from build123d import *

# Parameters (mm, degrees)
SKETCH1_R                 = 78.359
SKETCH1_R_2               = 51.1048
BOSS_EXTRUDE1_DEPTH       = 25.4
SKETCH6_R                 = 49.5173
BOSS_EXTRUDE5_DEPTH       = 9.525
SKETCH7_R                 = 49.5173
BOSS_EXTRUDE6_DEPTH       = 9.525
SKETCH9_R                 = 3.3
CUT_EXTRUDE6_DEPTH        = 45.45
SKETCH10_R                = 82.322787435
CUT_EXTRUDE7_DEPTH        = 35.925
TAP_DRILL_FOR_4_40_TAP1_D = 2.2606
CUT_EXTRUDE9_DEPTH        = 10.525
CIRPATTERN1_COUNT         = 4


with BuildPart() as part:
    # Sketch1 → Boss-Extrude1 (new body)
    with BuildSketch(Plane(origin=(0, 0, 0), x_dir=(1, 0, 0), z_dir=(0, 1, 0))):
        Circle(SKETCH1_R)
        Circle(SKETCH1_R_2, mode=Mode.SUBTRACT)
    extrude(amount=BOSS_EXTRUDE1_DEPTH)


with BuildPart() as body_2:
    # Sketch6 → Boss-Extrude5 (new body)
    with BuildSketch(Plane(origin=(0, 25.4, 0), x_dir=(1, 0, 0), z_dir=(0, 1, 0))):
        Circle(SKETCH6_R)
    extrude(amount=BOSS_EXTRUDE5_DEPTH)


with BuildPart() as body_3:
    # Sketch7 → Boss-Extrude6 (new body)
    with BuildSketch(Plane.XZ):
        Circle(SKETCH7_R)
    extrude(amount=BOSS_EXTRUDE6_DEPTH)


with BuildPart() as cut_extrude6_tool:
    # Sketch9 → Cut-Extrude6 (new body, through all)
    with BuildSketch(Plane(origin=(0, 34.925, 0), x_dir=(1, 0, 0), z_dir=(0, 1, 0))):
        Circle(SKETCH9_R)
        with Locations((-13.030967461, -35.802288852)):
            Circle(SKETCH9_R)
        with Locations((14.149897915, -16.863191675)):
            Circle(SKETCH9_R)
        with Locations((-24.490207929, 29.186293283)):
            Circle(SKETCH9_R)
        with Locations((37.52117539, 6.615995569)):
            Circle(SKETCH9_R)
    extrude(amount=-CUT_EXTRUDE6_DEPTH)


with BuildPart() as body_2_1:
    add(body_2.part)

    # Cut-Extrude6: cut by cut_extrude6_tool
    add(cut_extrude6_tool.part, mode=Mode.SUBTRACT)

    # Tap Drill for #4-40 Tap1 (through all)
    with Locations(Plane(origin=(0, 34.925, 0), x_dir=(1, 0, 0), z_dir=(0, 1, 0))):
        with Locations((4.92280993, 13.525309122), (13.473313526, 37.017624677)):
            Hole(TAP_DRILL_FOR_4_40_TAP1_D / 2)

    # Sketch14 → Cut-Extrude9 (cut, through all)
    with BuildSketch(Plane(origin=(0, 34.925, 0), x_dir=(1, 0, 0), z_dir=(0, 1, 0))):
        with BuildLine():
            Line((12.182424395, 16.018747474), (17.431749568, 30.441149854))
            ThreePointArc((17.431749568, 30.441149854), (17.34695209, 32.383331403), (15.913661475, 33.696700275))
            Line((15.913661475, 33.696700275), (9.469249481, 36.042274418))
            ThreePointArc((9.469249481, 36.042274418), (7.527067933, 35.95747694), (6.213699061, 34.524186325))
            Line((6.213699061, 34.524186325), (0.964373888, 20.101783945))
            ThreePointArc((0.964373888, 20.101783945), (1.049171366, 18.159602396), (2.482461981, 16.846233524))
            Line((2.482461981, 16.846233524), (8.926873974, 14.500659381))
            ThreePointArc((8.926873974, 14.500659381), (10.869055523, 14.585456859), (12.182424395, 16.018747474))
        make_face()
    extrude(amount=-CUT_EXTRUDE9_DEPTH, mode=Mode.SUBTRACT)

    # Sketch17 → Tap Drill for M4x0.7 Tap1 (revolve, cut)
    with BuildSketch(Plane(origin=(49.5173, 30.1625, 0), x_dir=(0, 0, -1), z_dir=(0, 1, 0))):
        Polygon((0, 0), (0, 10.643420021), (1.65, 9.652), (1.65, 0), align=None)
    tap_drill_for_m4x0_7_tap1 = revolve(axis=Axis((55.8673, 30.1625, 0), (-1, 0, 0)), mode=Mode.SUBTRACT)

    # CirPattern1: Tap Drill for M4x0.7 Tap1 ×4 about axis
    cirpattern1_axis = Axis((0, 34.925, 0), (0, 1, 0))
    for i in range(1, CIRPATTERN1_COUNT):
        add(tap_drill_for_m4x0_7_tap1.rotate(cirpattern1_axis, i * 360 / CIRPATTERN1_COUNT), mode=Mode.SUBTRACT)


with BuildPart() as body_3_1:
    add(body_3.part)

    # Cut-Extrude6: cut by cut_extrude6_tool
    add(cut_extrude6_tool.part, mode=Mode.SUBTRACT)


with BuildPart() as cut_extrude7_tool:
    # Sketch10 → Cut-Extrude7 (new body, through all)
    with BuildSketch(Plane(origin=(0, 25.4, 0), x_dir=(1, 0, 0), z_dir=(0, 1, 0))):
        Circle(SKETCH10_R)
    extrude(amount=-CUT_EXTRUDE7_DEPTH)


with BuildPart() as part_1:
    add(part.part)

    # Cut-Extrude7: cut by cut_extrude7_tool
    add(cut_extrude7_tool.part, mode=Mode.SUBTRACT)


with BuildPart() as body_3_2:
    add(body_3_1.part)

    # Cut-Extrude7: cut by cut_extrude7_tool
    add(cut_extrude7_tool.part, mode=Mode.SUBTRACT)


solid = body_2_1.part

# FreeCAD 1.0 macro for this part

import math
import FreeCAD as App
import Part
import Sketcher
from FreeCAD import Vector
Q = App.Units.Quantity


def add_polygon(sketch, points):
    """Adds a closed chain of lines whose ends are joined by coincident constraints."""
    first, n = sketch.GeometryCount, len(points)
    for a, b in zip(points, points[1:] + points[:1]):
        sketch.addGeometry(Part.LineSegment(App.Vector(*a, 0), App.Vector(*b, 0)), False)
    for i in range(n):
        sketch.addConstraint(Sketcher.Constraint("Coincident", first + i, 2, first + (i + 1) % n, 1))

doc = App.newDocument("Part")
body = doc.addObject("PartDesign::Body", "Body")

# Sketch on XZ plane
sketch1 = doc.addObject("Sketcher::SketchObject", "Sketch")
body.addObject(sketch1)
sketch1.AttachmentSupport = (doc.XZ_Plane, [""])
sketch1.MapMode = "FlatFace"
sketch1.addGeometry([
    Part.Circle(Vector(0, 0, 0), Vector(0, 0, 1), 78),
    Part.Circle(Vector(0, 0, 0), Vector(0, 0, 1), 51),
], False)
sketch1.addConstraint([
    Sketcher.Constraint("Coincident", 0, 3, -1, 1),
    Sketcher.Constraint("Coincident", 1, 3, -1, 1),
    Sketcher.Constraint("Diameter", 0, Q("6.17 in")),
    Sketcher.Constraint("Diameter", 1, Q("4.024 in")),
])
pad1 = doc.addObject("PartDesign::Pad", "Pad")
body.addObject(pad1)
pad1.Profile = sketch1
pad1.Length = Q("1 in")
pad1.Reversed = True
body2 = doc.addObject("PartDesign::Body", "Body001")

# Sketch on XZ plane
sketch2 = doc.addObject("Sketcher::SketchObject", "Sketch001")
body2.addObject(sketch2)
sketch2.AttachmentSupport = (doc.getObject("XZ_Plane001"), [""])
sketch2.MapMode = "FlatFace"
sketch2.AttachmentOffset = App.Placement(Vector(0, 0, -1 * 25.4), App.Rotation())
sketch2.addGeometry(Part.Circle(Vector(0, 0, 0), Vector(0, 0, 1), 50), False)
sketch2.addConstraint([
    Sketcher.Constraint("Coincident", 0, 3, -1, 1),
    Sketcher.Constraint("Diameter", 0, Q("3.899 in")),
])
pad2 = doc.addObject("PartDesign::Pad", "Pad001")
body2.addObject(pad2)
pad2.Profile = sketch2
pad2.Length = Q("0.375 in")
pad2.Reversed = True
body3 = doc.addObject("PartDesign::Body", "Body002")

# Sketch on XZ plane
sketch3 = doc.addObject("Sketcher::SketchObject", "Sketch002")
body3.addObject(sketch3)
sketch3.AttachmentSupport = (doc.getObject("XZ_Plane002"), [""])
sketch3.MapMode = "FlatFace"
sketch3.addGeometry(Part.Circle(Vector(0, 0, 0), Vector(0, 0, 1), 50), False)
sketch3.addConstraint([
    Sketcher.Constraint("Coincident", 0, 3, -1, 1),
    Sketcher.Constraint("Diameter", 0, Q("3.899 in")),
])
pad3 = doc.addObject("PartDesign::Pad", "Pad002")
body3.addObject(pad3)
pad3.Profile = sketch3
pad3.Length = Q("0.375 in")
body4 = doc.addObject("PartDesign::Body", "Body003")
body4.AllowCompound = True

# Sketch on XZ plane
sketch4 = doc.addObject("Sketcher::SketchObject", "Sketch003")
body4.addObject(sketch4)
sketch4.AttachmentSupport = (doc.getObject("XZ_Plane003"), [""])
sketch4.MapMode = "FlatFace"
sketch4.AttachmentOffset = App.Placement(Vector(0, 0, -1.375 * 25.4), App.Rotation())
sketch4.addGeometry([
    Part.Circle(Vector(0, 0, 0), Vector(0, 0, 1), 3.3),  # 0
    Part.Circle(Vector(-13, 35.8, 0), Vector(0, 0, 1), 3.3),  # 1
    Part.Circle(Vector(14.1, 16.9, 0), Vector(0, 0, 1), 3.3),  # 2
    Part.Circle(Vector(-24.5, -29.2, 0), Vector(0, 0, 1), 3.3),  # 3
    Part.Circle(Vector(37.5, -6.6, 0), Vector(0, 0, 1), 3.3),  # 4
], False)
sketch4.addConstraint([
    Sketcher.Constraint("Coincident", 0, 3, -1, 1),
    Sketcher.Constraint("Equal", 0, 1),
    Sketcher.Constraint("Equal", 1, 2),
    Sketcher.Constraint("Equal", 2, 3),
    Sketcher.Constraint("Equal", 3, 4),
    Sketcher.Constraint("Diameter", 0, 6.6),
    Sketcher.Constraint("DistanceY", -1, 1, 1, 3, 35.802289),
    Sketcher.Constraint("DistanceY", -1, 1, 2, 3, 16.863192),
    Sketcher.Constraint("DistanceX", 3, 3, 1, 3, 11.45924),
    Sketcher.Constraint("DistanceX", 1, 3, -1, 1, 13.030967),
    Sketcher.Constraint("DistanceX", -1, 1, 2, 3, 14.149898),
    Sketcher.Constraint("DistanceY", 3, 3, -1, 1, 29.186293),
    Sketcher.Constraint("DistanceX", -1, 1, 4, 3, 37.521175),
    Sketcher.Constraint("DistanceY", 4, 3, -1, 1, 6.615996),
])
pad4 = doc.addObject("PartDesign::Pad", "Pad003")
body4.addObject(pad4)
pad4.Profile = sketch4
pad4.Length = 45.45
doc.recompute()

body5 = doc.addObject("PartDesign::Body", "Body004")
body5.BaseFeature = body4
boolean = doc.addObject("PartDesign::Boolean", "Boolean")
body2.addObject(boolean)
boolean.Type = "Cut"
boolean.addObjects([body5])
doc.recompute()

# Sketch on XZ plane
sketch5 = doc.addObject("Sketcher::SketchObject", "Sketch004")
body2.addObject(sketch5)
sketch5.AttachmentSupport = (doc.getObject("XZ_Plane001"), [""])
sketch5.MapMode = "FlatFace"
sketch5.AttachmentOffset = App.Placement(Vector(0, 0, -1.375 * 25.4), App.Rotation())
sketch5.addGeometry([
    Part.Circle(Vector(4.9, -13.5, 0), Vector(0, 0, 1), 1.1),
    Part.Circle(Vector(13.5, -37, 0), Vector(0, 0, 1), 1.1),
], False)
sketch5.addConstraint([
    Sketcher.Constraint("Equal", 0, 1),
    Sketcher.Constraint("Diameter", 0, Q("0.089 in")),
    Sketcher.Constraint("DistanceX", -1, 1, 0, 3, 4.92281),
    Sketcher.Constraint("DistanceY", 0, 3, -1, 1, 13.525309),
    Sketcher.Constraint("DistanceX", -1, 1, 1, 3, 13.473314),
    Sketcher.Constraint("DistanceY", 1, 3, -1, 1, 37.017625),
])
doc.recompute()
hole = doc.addObject("PartDesign::Hole", "Hole")
body2.addObject(hole)
hole.Profile = sketch5
hole.ThreadType = "None"
hole.Diameter = Q("0.089 in")
hole.DepthType = "ThroughAll"
hole.Reversed = True

# Sketch on XZ plane
sketch6 = doc.addObject("Sketcher::SketchObject", "Sketch005")
body2.addObject(sketch6)
sketch6.AttachmentSupport = (doc.getObject("XZ_Plane001"), [""])
sketch6.MapMode = "FlatFace"
sketch6.AttachmentOffset = App.Placement(Vector(0, 0, -1.375 * 25.4), App.Rotation())
sketch6.addGeometry([
    Part.LineSegment(Vector(12.2, -16, 0), Vector(17.4, -30.4, 0)),  # 0
    Part.ArcOfCircle(Part.Circle(Vector(15, -31.3, 0), Vector(0, 0, 1), 2.5), math.radians(-70), math.radians(20)),  # 1
    Part.LineSegment(Vector(15.9, -33.7, 0), Vector(9.5, -36, 0)),  # 2
    Part.ArcOfCircle(Part.Circle(Vector(8.6, -33.7, 0), Vector(0, 0, 1), 2.5), math.radians(-160), math.radians(-70)),  # 3
    Part.LineSegment(Vector(6.2, -34.5, 0), Vector(1, -20.1, 0)),  # 4
    Part.ArcOfCircle(Part.Circle(Vector(3.4, -19.2, 0), Vector(0, 0, 1), 2.5), math.radians(110), math.radians(200)),  # 5
    Part.LineSegment(Vector(2.5, -16.8, 0), Vector(8.9, -14.5, 0)),  # 6
    Part.ArcOfCircle(Part.Circle(Vector(9.8, -16.9, 0), Vector(0, 0, 1), 2.5), math.radians(20), math.radians(110)),  # 7
], False)
sketch6.addConstraint([
    Sketcher.Constraint("Tangent", 0, 2, 1, 2),
    Sketcher.Constraint("Tangent", 1, 1, 2, 1),
    Sketcher.Constraint("Tangent", 2, 2, 3, 2),
    Sketcher.Constraint("Tangent", 3, 1, 4, 1),
    Sketcher.Constraint("Tangent", 4, 2, 5, 2),
    Sketcher.Constraint("Tangent", 5, 1, 6, 1),
    Sketcher.Constraint("Tangent", 6, 2, 7, 2),
    Sketcher.Constraint("Tangent", 7, 1, 0, 1),
    Sketcher.Constraint("Equal", 1, 3),
    Sketcher.Constraint("Equal", 3, 5),
    Sketcher.Constraint("Equal", 5, 7),
    Sketcher.Constraint("Perpendicular", 0, 2),
    Sketcher.Constraint("Perpendicular", 2, 4),
    Sketcher.Constraint("Perpendicular", 4, 6),
    Sketcher.Constraint("Radius", 1, Q("0.1 in")),
    Sketcher.Constraint("Angle", 0, Q("-70 deg")),
    Sketcher.Constraint("Distance", 2, Q("0.27 in")),
    Sketcher.Constraint("Distance", 0, 15.348),
    Sketcher.Constraint("DistanceY", 1, 1, -1, 1, 33.6967),
    Sketcher.Constraint("DistanceX", -1, 1, 3, 1, 6.213699),
])
pocket1 = doc.addObject("PartDesign::Pocket", "Pocket")
body2.addObject(pocket1)
pocket1.Profile = sketch6
pocket1.Type = "ThroughAll"
pocket1.Reversed = True

# Sketch on XZ plane
sketch7 = doc.addObject("Sketcher::SketchObject", "Sketch006")
body2.addObject(sketch7)
sketch7.AttachmentSupport = (doc.getObject("XZ_Plane001"), [""])
sketch7.MapMode = "FlatFace"
sketch7.AttachmentOffset = App.Placement(Vector(0, 0, -1.1875 * 25.4), App.Rotation())
add_polygon(sketch7, [(38.9, 0), (49.5, 0), (49.5, -1.6), (39.9, -1.6)])  # lines 0-3
sketch7.addConstraint([
    Sketcher.Constraint("Horizontal", 0),
    Sketcher.Constraint("Vertical", 1),
    Sketcher.Constraint("Horizontal", 2),
    Sketcher.Constraint("PointOnObject", 0, 2, -1),
    Sketcher.Constraint("Angle", 3, Q("121 deg")),
    Sketcher.Constraint("DistanceX", 2, 2, 2, 1, Q("0.38 in")),
    Sketcher.Constraint("DistanceY", 1, 2, 1, 1, 1.65),
    Sketcher.Constraint("DistanceX", -1, 1, 0, 2, Q("1.9495 in")),
])
groove = doc.addObject("PartDesign::Groove", "Groove")
body2.addObject(groove)
groove.Profile = sketch7
groove.ReferenceAxis = (sketch7, ["H_Axis"])
groove.Angle = 360
doc.recompute()

polarpattern = doc.addObject("PartDesign::PolarPattern", "PolarPattern")
body2.addObject(polarpattern)
polarpattern.Originals = [groove]
polarpattern.Axis = (doc.getObject("Y_Axis001"), [""])
polarpattern.Angle = 360
polarpattern.Occurrences = 4
body2.Tip = polarpattern
doc.recompute()

boolean2 = doc.addObject("PartDesign::Boolean", "Boolean001")
body3.addObject(boolean2)
boolean2.Type = "Cut"
boolean2.addObjects([body4])
body6 = doc.addObject("PartDesign::Body", "Body005")

# Sketch on XZ plane
sketch8 = doc.addObject("Sketcher::SketchObject", "Sketch007")
body6.addObject(sketch8)
sketch8.AttachmentSupport = (doc.getObject("XZ_Plane005"), [""])
sketch8.MapMode = "FlatFace"
sketch8.AttachmentOffset = App.Placement(Vector(0, 0, -1 * 25.4), App.Rotation())
sketch8.addGeometry(Part.Circle(Vector(0, 0, 0), Vector(0, 0, 1), 82), False)
sketch8.addConstraint([
    Sketcher.Constraint("Coincident", 0, 3, -1, 1),
    Sketcher.Constraint("Diameter", 0, 164.645575),
])
pad5 = doc.addObject("PartDesign::Pad", "Pad004")
body6.addObject(pad5)
pad5.Profile = sketch8
pad5.Length = 35.925
doc.recompute()

body7 = doc.addObject("PartDesign::Body", "Body006")
body7.BaseFeature = body6
boolean3 = doc.addObject("PartDesign::Boolean", "Boolean002")
body.addObject(boolean3)
boolean3.Type = "Cut"
boolean3.addObjects([body7])
doc.recompute()

boolean4 = doc.addObject("PartDesign::Boolean", "Boolean003")
body3.addObject(boolean4)
boolean4.Type = "Cut"
boolean4.addObjects([body6])

doc.recompute()
